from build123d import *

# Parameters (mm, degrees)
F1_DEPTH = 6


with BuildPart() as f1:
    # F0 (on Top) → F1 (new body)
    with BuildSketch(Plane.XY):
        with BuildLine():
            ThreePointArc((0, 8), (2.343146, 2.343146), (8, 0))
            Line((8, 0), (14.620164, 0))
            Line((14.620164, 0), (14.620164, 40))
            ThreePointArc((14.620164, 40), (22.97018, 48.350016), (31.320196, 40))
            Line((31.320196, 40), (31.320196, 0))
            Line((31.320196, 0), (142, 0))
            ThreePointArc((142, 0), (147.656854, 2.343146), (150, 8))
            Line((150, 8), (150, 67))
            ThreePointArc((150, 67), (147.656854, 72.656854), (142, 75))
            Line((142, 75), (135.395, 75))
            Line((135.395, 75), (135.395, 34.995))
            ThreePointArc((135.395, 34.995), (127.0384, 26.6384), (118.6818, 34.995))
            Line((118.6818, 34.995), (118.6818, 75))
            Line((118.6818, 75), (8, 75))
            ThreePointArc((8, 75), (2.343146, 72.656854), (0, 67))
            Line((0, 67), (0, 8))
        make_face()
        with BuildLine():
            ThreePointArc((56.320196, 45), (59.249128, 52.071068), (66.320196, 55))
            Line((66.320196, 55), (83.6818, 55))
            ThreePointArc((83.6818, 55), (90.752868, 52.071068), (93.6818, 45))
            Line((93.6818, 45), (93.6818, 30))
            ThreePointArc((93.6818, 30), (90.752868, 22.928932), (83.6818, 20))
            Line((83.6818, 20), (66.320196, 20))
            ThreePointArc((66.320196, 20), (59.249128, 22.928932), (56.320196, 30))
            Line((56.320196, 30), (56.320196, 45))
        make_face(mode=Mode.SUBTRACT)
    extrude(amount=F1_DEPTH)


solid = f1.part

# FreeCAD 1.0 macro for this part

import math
import FreeCAD as App
import Part
import Sketcher

V = App.Vector
Q = App.Units.Quantity

doc = App.newDocument("Part")
body = doc.addObject("PartDesign::Body", "Body")

sketch1 = body.newObject("Sketcher::SketchObject", "Sketch")
sketch1.AttachmentSupport = (doc.getObject("XY_Plane"), [""])
sketch1.MapMode = "FlatFace"
sketch1.addGeometry([
    Part.ArcOfCircle(Part.Circle(V(8, 8, 0), V(0, 0, 1), 8), math.radians(-180), math.radians(-90)),
    Part.LineSegment(V(8, 0, 0), V(15, 0, 0)),
    Part.LineSegment(V(15, 0, 0), V(15, 40, 0)),
    Part.ArcOfCircle(Part.Circle(V(23, 40, 0), V(0, 0, 1), 8), math.radians(0), math.radians(180)),
    Part.LineSegment(V(31, 40, 0), V(31, 0, 0)),
    Part.LineSegment(V(31, 0, 0), V(142, 0, 0)),
    Part.ArcOfCircle(Part.Circle(V(142, 8, 0), V(0, 0, 1), 8), math.radians(-90), math.radians(0)),
    Part.LineSegment(V(150, 8, 0), V(150, 67, 0)),
    Part.ArcOfCircle(Part.Circle(V(142, 67, 0), V(0, 0, 1), 8), math.radians(0), math.radians(90)),
    Part.LineSegment(V(142, 75, 0), V(135, 75, 0)),
    Part.LineSegment(V(135, 75, 0), V(135, 35, 0)),
    Part.ArcOfCircle(Part.Circle(V(127, 35, 0), V(0, 0, 1), 8), math.radians(180), math.radians(360)),
    Part.LineSegment(V(119, 35, 0), V(119, 75, 0)),
    Part.LineSegment(V(119, 75, 0), V(8, 75, 0)),
    Part.ArcOfCircle(Part.Circle(V(8, 67, 0), V(0, 0, 1), 8), math.radians(90), math.radians(180)),
    Part.LineSegment(V(0, 67, 0), V(0, 8, 0)),
    Part.LineSegment(V(56, 30, 0), V(56, 45, 0)),
    Part.ArcOfCircle(Part.Circle(V(66, 45, 0), V(0, 0, 1), 10), math.radians(90), math.radians(180)),
    Part.LineSegment(V(66, 55, 0), V(84, 55, 0)),
    Part.ArcOfCircle(Part.Circle(V(84, 45, 0), V(0, 0, 1), 10), math.radians(0), math.radians(90)),
    Part.LineSegment(V(94, 45, 0), V(94, 30, 0)),
    Part.ArcOfCircle(Part.Circle(V(84, 30, 0), V(0, 0, 1), 10), math.radians(-90), math.radians(0)),
    Part.LineSegment(V(84, 20, 0), V(66, 20, 0)),
    Part.ArcOfCircle(Part.Circle(V(66, 30, 0), V(0, 0, 1), 10), math.radians(180), math.radians(270)),
], False)
sketch1.addConstraint([
    Sketcher.Constraint("Tangent", 0, 2, 1, 1),
    Sketcher.Constraint("Coincident", 1, 2, 2, 1),
    Sketcher.Constraint("Tangent", 2, 2, 3, 2),
    Sketcher.Constraint("Tangent", 3, 1, 4, 1),
    Sketcher.Constraint("Coincident", 4, 2, 5, 1),
    Sketcher.Constraint("Tangent", 5, 2, 6, 1),
    Sketcher.Constraint("Tangent", 6, 2, 7, 1),
    Sketcher.Constraint("Tangent", 7, 2, 8, 1),
    Sketcher.Constraint("Tangent", 8, 2, 9, 1),
    Sketcher.Constraint("Coincident", 9, 2, 10, 1),
    Sketcher.Constraint("Tangent", 10, 2, 11, 2),
    Sketcher.Constraint("Tangent", 11, 1, 12, 1),
    Sketcher.Constraint("Coincident", 12, 2, 13, 1),
    Sketcher.Constraint("Tangent", 13, 2, 14, 1),
    Sketcher.Constraint("Tangent", 14, 2, 15, 1),
    Sketcher.Constraint("Tangent", 15, 2, 0, 1),
    Sketcher.Constraint("Tangent", 16, 2, 17, 2),
    Sketcher.Constraint("Tangent", 17, 1, 18, 1),
    Sketcher.Constraint("Tangent", 18, 2, 19, 2),
    Sketcher.Constraint("Tangent", 19, 1, 20, 1),
    Sketcher.Constraint("Tangent", 20, 2, 21, 2),
    Sketcher.Constraint("Tangent", 21, 1, 22, 1),
    Sketcher.Constraint("Tangent", 22, 2, 23, 2),
    Sketcher.Constraint("Tangent", 23, 1, 16, 1),
    Sketcher.Constraint("Horizontal", 1),
    Sketcher.Constraint("Vertical", 2),
    Sketcher.Constraint("Vertical", 4),
    Sketcher.Constraint("Horizontal", 5),
    Sketcher.Constraint("Vertical", 7),
    Sketcher.Constraint("Horizontal", 9),
    Sketcher.Constraint("Vertical", 10),
    Sketcher.Constraint("Vertical", 12),
    Sketcher.Constraint("Horizontal", 13),
    Sketcher.Constraint("Vertical", 15),
    Sketcher.Constraint("Vertical", 16),
    Sketcher.Constraint("Horizontal", 18),
    Sketcher.Constraint("Vertical", 20),
    Sketcher.Constraint("Horizontal", 22),
    Sketcher.Constraint("Equal", 0, 6),
    Sketcher.Constraint("Equal", 6, 8),
    Sketcher.Constraint("Equal", 8, 14),
    Sketcher.Constraint("Equal", 17, 19),
    Sketcher.Constraint("Equal", 19, 21),
    Sketcher.Constraint("Equal", 21, 23),
    Sketcher.Constraint("PointOnObject", 0, 2, -1),
    Sketcher.Constraint("PointOnObject", 4, 2, -1),
    Sketcher.Constraint("PointOnObject", 14, 2, -2),
    Sketcher.Constraint("Horizontal", 8, 3, 14, 3),
    Sketcher.Constraint("Radius", 0, Q("8.000001 mm")),
    Sketcher.Constraint("Radius", 17, Q("9.999999 mm")),
    Sketcher.Constraint("DistanceY", 2, 1, 2, 2, Q("40 mm")),
    Sketcher.Constraint("DistanceY", 7, 1, 7, 2, Q("59 mm")),
    Sketcher.Constraint("DistanceY", 16, 1, 16, 2, Q("15 mm")),
    Sketcher.Constraint("DistanceX", -1, 1, 6, 3, Q("141.999999 mm")),
    Sketcher.Constraint("DistanceY", -1, 1, 17, 3, Q("45.000001 mm")),
    Sketcher.Constraint("DistanceX", 3, 1, 17, 3, Q("34.999999 mm")),
    Sketcher.Constraint("DistanceX", 21, 3, 11, 1, Q("34.999999 mm")),
    Sketcher.Constraint("Radius", 11, Q("8.3566 mm")),
    Sketcher.Constraint("DistanceX", 9, 2, 9, 1, Q("6.605 mm")),
    Sketcher.Constraint("DistanceY", 10, 2, 10, 1, Q("40.005 mm")),
    Sketcher.Constraint("Radius", 3, Q("8.350016 mm")),
    Sketcher.Constraint("DistanceX", 1, 1, 1, 2, Q("6.620164 mm")),
])
pad1 = body.newObject("PartDesign::Pad", "Pad")
pad1.Profile = sketch1
pad1.Length = 6

doc.recompute()
